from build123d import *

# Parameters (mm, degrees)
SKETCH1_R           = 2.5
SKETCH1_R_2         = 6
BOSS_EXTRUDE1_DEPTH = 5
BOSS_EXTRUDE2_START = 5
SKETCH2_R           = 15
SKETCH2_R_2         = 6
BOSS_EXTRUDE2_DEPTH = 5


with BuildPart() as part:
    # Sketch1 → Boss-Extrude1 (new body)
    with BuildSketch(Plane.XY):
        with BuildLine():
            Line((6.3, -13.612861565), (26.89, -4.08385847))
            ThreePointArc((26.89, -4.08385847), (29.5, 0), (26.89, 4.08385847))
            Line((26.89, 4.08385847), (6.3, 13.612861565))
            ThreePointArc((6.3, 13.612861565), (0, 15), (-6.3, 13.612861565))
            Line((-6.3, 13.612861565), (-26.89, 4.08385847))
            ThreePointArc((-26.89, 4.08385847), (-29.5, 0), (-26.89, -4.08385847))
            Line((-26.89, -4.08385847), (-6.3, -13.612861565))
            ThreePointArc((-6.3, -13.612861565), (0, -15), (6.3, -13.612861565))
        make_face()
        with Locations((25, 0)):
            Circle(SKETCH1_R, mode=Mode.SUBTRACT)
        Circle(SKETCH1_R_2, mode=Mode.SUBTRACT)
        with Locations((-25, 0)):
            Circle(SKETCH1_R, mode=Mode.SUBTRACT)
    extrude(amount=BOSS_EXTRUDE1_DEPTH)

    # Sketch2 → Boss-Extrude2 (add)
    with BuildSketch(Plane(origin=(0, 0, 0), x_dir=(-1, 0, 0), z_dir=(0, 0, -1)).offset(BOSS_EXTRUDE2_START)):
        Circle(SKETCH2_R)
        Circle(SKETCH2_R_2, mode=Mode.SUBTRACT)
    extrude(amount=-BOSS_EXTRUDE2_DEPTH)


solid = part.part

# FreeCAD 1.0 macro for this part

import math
import FreeCAD as App
import Part
import Sketcher

doc = App.newDocument("Part")
params = doc.addObject("Spreadsheet::Sheet", "Params")
for row, (alias, value) in enumerate([
    ("sketch1_diameter", "5 mm"),
    ("sketch1_diameter2", "12 mm"),
    ("sketch1_radius", "15 mm"),
    ("sketch1_radius2", "4.5 mm"),
    ("pad1_length", "5 mm"),
    ("sketch2_diameter", "30 mm"),
    ("sketch2_diameter2", "12 mm"),
    ("pad2_length", "5 mm"),
], start=1):
    params.set(f"A{row}", alias)
    params.set(f"B{row}", "=" + value)
    params.setAlias(f"B{row}", alias)

body = doc.addObject("PartDesign::Body", "Body")

# Sketch on XY plane
sketch1 = body.newObject("Sketcher::SketchObject", "Sketch")
sketch1.AttachmentSupport = (doc.getObject("XY_Plane"), [""])
sketch1.MapMode = "FlatFace"
sketch1.addGeometry(Part.LineSegment(App.Vector(6.3, -13.6, 0), App.Vector(26.9, -4.1, 0)), False)
sketch1.addGeometry(Part.ArcOfCircle(Part.Circle(App.Vector(25, 0, 0), App.Vector(0, 0, 1), 4.5), math.radians(-65), math.radians(65)), False)
sketch1.addGeometry(Part.LineSegment(App.Vector(26.9, 4.1, 0), App.Vector(6.3, 13.6, 0)), False)
sketch1.addGeometry(Part.ArcOfCircle(Part.Circle(App.Vector(0, 0, 0), App.Vector(0, 0, 1), 15), math.radians(65), math.radians(115)), False)
sketch1.addGeometry(Part.LineSegment(App.Vector(-6.3, 13.6, 0), App.Vector(-26.9, 4.1, 0)), False)
sketch1.addGeometry(Part.ArcOfCircle(Part.Circle(App.Vector(-25, 0, 0), App.Vector(0, 0, 1), 4.5), math.radians(115), math.radians(245)), False)
sketch1.addGeometry(Part.LineSegment(App.Vector(-26.9, -4.1, 0), App.Vector(-6.3, -13.6, 0)), False)
sketch1.addGeometry(Part.ArcOfCircle(Part.Circle(App.Vector(0, 0, 0), App.Vector(0, 0, 1), 15), math.radians(-115), math.radians(-65)), False)
sketch1.addGeometry(Part.Circle(App.Vector(-25, 0, 0), App.Vector(0, 0, 1), 2.5), False)
sketch1.addGeometry(Part.Circle(App.Vector(0, 0, 0), App.Vector(0, 0, 1), 6), False)
sketch1.addGeometry(Part.Circle(App.Vector(25, 0, 0), App.Vector(0, 0, 1), 2.5), False)
sketch1.addConstraint(Sketcher.Constraint("Tangent", 0, 2, 1, 1))
sketch1.addConstraint(Sketcher.Constraint("Tangent", 1, 2, 2, 1))
sketch1.addConstraint(Sketcher.Constraint("Tangent", 2, 2, 3, 1))
sketch1.addConstraint(Sketcher.Constraint("Tangent", 3, 2, 4, 1))
sketch1.addConstraint(Sketcher.Constraint("Tangent", 4, 2, 5, 1))
sketch1.addConstraint(Sketcher.Constraint("Tangent", 5, 2, 6, 1))
sketch1.addConstraint(Sketcher.Constraint("Tangent", 6, 2, 7, 1))
sketch1.addConstraint(Sketcher.Constraint("Tangent", 7, 2, 0, 1))
sketch1.addConstraint(Sketcher.Constraint("Coincident", 3, 3, -1, 1))
sketch1.addConstraint(Sketcher.Constraint("Coincident", 7, 3, -1, 1))
sketch1.addConstraint(Sketcher.Constraint("Coincident", 9, 3, -1, 1))
sketch1.addConstraint(Sketcher.Constraint("Coincident", 8, 3, 5, 3))
sketch1.addConstraint(Sketcher.Constraint("Coincident", 10, 3, 1, 3))
sketch1.addConstraint(Sketcher.Constraint("Equal", 1, 5))
sketch1.addConstraint(Sketcher.Constraint("Equal", 3, 7))
sketch1.addConstraint(Sketcher.Constraint("Equal", 8, 10))
sketch1.addConstraint(Sketcher.Constraint("Symmetric", 1, 3, 5, 3, -1, 1))
sketch1.addConstraint(Sketcher.Constraint("PointOnObject", 1, 3, -1))
sketch1.addConstraint(Sketcher.Constraint("Diameter", 8, 5.0))
sketch1.addConstraint(Sketcher.Constraint("Diameter", 9, 12.0))
sketch1.addConstraint(Sketcher.Constraint("Radius", 3, 15.0))
sketch1.addConstraint(Sketcher.Constraint("Radius", 1, 4.5))
sketch1.addConstraint(Sketcher.Constraint("DistanceX", -1, 1, 1, 3, 25.0))
sketch1.setExpression("Constraints[18]", "Params.sketch1_diameter")
sketch1.setExpression("Constraints[19]", "Params.sketch1_diameter2")
sketch1.setExpression("Constraints[20]", "Params.sketch1_radius")
sketch1.setExpression("Constraints[21]", "Params.sketch1_radius2")
pad1 = body.newObject("PartDesign::Pad", "Pad")
pad1.Profile = sketch1
pad1.setExpression("Length", "Params.pad1_length")

# Sketch on XY plane
sketch2 = body.newObject("Sketcher::SketchObject", "Sketch001")
sketch2.AttachmentSupport = (doc.getObject("XY_Plane"), [""])
sketch2.MapMode = "FlatFace"
sketch2.AttachmentOffset = App.Placement(App.Vector(0, 0, -5), App.Rotation())
sketch2.addGeometry(Part.Circle(App.Vector(0, 0, 0), App.Vector(0, 0, 1), 15), False)
sketch2.addGeometry(Part.Circle(App.Vector(0, 0, 0), App.Vector(0, 0, 1), 6), False)
sketch2.addConstraint(Sketcher.Constraint("Coincident", 0, 3, -1, 1))
sketch2.addConstraint(Sketcher.Constraint("Coincident", 1, 3, -1, 1))
sketch2.addConstraint(Sketcher.Constraint("Diameter", 0, 30.0))
sketch2.addConstraint(Sketcher.Constraint("Diameter", 1, 12.0))
sketch2.setExpression("Constraints[2]", "Params.sketch2_diameter")
sketch2.setExpression("Constraints[3]", "Params.sketch2_diameter2")
pad2 = body.newObject("PartDesign::Pad", "Pad001")
pad2.Profile = sketch2
pad2.setExpression("Length", "Params.pad2_length")

doc.recompute()
